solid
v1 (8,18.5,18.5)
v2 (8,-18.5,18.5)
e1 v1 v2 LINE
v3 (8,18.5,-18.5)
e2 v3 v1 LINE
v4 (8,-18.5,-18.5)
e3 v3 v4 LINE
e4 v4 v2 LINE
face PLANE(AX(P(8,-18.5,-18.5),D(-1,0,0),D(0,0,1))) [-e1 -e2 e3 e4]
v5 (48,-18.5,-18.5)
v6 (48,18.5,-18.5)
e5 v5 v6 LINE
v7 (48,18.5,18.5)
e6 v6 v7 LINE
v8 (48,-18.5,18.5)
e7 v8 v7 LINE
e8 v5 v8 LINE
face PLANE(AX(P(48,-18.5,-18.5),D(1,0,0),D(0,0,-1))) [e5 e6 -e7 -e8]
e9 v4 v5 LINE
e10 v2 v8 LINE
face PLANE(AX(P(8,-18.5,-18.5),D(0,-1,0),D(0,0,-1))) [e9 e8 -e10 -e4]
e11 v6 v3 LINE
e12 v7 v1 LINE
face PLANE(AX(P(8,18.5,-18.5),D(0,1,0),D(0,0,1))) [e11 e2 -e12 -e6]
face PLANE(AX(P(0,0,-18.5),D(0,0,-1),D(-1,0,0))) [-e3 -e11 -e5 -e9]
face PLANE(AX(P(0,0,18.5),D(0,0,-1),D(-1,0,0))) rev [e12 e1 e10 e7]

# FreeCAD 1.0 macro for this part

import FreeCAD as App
import Part
import Sketcher

V = App.Vector

doc = App.newDocument("Part")
params = doc.addObject("Spreadsheet::Sheet", "Params")
for row, (alias, value) in enumerate([
    ("sketch1_width", "40 mm"),
    ("sketch1_height", "37 mm"),
    ("pad1_length", "37 mm"),
], start=1):
    params.set(f"A{row}", alias)
    params.set(f"B{row}", "=" + value)
    params.setAlias(f"B{row}", alias)

body = doc.addObject("PartDesign::Body", "Body")

# Sketch on XY plane
sketch1 = body.newObject("Sketcher::SketchObject", "Sketch")
sketch1.AttachmentSupport = (doc.getObject("XY_Plane"), [""])
sketch1.MapMode = "FlatFace"
sketch1.AttachmentOffset = App.Placement(V(0, 0, 18.5), App.Rotation())
sketch1.addGeometry([
    Part.LineSegment(V(8, 18, 0), V(8, -18, 0)),
    Part.LineSegment(V(8, -18, 0), V(48, -18, 0)),
    Part.LineSegment(V(48, -18, 0), V(48, 18, 0)),
    Part.LineSegment(V(48, 18, 0), V(8, 18, 0)),
], False)
sketch1.addConstraint([
    Sketcher.Constraint("Coincident", 0, 2, 1, 1),
    Sketcher.Constraint("Coincident", 1, 2, 2, 1),
    Sketcher.Constraint("Coincident", 2, 2, 3, 1),
    Sketcher.Constraint("Coincident", 3, 2, 0, 1),
    Sketcher.Constraint("Vertical", 0),
    Sketcher.Constraint("Horizontal", 1),
    Sketcher.Constraint("Vertical", 2),
    Sketcher.Constraint("Horizontal", 3),
    Sketcher.Constraint("DistanceX", 1, 1, 1, 2, 40.0),
    Sketcher.Constraint("DistanceY", 0, 2, 0, 1, 37.0),
    Sketcher.Constraint("DistanceX", -1, 1, 0, 2, 8.0),
    Sketcher.Constraint("DistanceY", 0, 2, -1, 1, 18.5),
])
sketch1.setExpression("Constraints[8]", "Params.sketch1_width")
sketch1.setExpression("Constraints[9]", "Params.sketch1_height")
pad1 = body.newObject("PartDesign::Pad", "Pad")
pad1.Profile = sketch1
pad1.setExpression("Length", "Params.pad1_length")
pad1.Reversed = True

doc.recompute()
